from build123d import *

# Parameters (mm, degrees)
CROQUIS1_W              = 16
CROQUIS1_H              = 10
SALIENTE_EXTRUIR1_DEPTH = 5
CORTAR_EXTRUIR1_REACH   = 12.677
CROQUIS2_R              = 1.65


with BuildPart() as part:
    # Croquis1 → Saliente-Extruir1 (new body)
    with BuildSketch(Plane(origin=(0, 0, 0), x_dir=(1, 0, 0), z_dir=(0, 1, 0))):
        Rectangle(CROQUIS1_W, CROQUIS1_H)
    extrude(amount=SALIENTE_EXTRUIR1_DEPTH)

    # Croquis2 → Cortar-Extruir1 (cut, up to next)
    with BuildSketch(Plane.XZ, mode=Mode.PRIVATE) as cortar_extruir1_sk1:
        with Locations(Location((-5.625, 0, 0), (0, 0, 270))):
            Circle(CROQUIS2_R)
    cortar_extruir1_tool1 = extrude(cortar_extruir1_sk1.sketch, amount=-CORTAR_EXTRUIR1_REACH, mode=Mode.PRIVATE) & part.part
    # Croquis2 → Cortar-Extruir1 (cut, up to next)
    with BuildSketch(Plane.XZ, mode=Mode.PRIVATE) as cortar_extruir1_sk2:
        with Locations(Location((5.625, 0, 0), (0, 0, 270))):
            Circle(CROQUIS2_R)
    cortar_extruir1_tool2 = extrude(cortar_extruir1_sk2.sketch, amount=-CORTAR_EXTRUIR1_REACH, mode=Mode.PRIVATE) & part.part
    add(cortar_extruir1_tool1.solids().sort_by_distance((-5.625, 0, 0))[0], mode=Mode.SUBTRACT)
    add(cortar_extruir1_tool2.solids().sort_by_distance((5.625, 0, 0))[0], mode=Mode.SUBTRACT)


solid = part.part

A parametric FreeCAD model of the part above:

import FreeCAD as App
import Part
import Sketcher
Q = App.Units.Quantity


def add_polygon(sketch, points):
    """Adds a closed chain of lines whose ends are joined by coincident constraints."""
    first, n = sketch.GeometryCount, len(points)
    for a, b in zip(points, points[1:] + points[:1]):
        sketch.addGeometry(Part.LineSegment(App.Vector(*a, 0), App.Vector(*b, 0)), False)
    for i in range(n):
        sketch.addConstraint(Sketcher.Constraint("Coincident", first + i, 2, first + (i + 1) % n, 1))

doc = App.newDocument("Part")
body = doc.addObject("PartDesign::Body", "Body")

sketch1 = doc.addObject("Sketcher::SketchObject", "Sketch")
body.addObject(sketch1)
sketch1.AttachmentSupport = (doc.XZ_Plane, [""])
sketch1.MapMode = "FlatFace"
add_polygon(sketch1, [(-8, -5), (-8, 5), (8, 5), (8, -5)])
sketch1.addConstraint(Sketcher.Constraint("Vertical", 0))
sketch1.addConstraint(Sketcher.Constraint("Horizontal", 1))
sketch1.addConstraint(Sketcher.Constraint("Vertical", 2))
sketch1.addConstraint(Sketcher.Constraint("Horizontal", 3))
sketch1.addConstraint(Sketcher.Constraint("Symmetric", 0, 2, 2, 2, -1, 1))
sketch1.addConstraint(Sketcher.Constraint("DistanceX", 1, 1, 1, 2, Q("16 mm")))
sketch1.addConstraint(Sketcher.Constraint("DistanceY", 0, 1, 0, 2, Q("10 mm")))
pad1 = doc.addObject("PartDesign::Pad", "Pad")
body.addObject(pad1)
pad1.Profile = sketch1
pad1.Length = 5
pad1.Reversed = True

sketch2 = doc.addObject("Sketcher::SketchObject", "Sketch001")
body.addObject(sketch2)
sketch2.AttachmentSupport = (doc.XZ_Plane, [""])
sketch2.MapMode = "FlatFace"
sketch2.addGeometry(Part.Circle(App.Vector(-5.625, 0, 0), App.Vector(0, 0, 1), 1.65), False)
sketch2.addConstraint(Sketcher.Constraint("PointOnObject", 0, 3, -1))
sketch2.addConstraint(Sketcher.Constraint("Diameter", 0, Q("3.3 mm")))
sketch2.addConstraint(Sketcher.Constraint("DistanceX", 0, 3, -1, 1, Q("5.625 mm")))
pocket1 = doc.addObject("PartDesign::Pocket", "Pocket")
body.addObject(pocket1)
pocket1.Profile = sketch2
pocket1.Type = "UpToFirst"

sketch3 = doc.addObject("Sketcher::SketchObject", "Sketch002")
body.addObject(sketch3)
sketch3.AttachmentSupport = (doc.XZ_Plane, [""])
sketch3.MapMode = "FlatFace"
sketch3.addGeometry(Part.Circle(App.Vector(5.625, 0, 0), App.Vector(0, 0, 1), 1.65), False)
sketch3.addConstraint(Sketcher.Constraint("PointOnObject", 0, 3, -1))
sketch3.addConstraint(Sketcher.Constraint("Diameter", 0, Q("3.3 mm")))
sketch3.addConstraint(Sketcher.Constraint("DistanceX", -1, 1, 0, 3, Q("5.625 mm")))
pocket2 = doc.addObject("PartDesign::Pocket", "Pocket001")
body.addObject(pocket2)
pocket2.Profile = sketch3
pocket2.Type = "UpToFirst"

doc.recompute()
